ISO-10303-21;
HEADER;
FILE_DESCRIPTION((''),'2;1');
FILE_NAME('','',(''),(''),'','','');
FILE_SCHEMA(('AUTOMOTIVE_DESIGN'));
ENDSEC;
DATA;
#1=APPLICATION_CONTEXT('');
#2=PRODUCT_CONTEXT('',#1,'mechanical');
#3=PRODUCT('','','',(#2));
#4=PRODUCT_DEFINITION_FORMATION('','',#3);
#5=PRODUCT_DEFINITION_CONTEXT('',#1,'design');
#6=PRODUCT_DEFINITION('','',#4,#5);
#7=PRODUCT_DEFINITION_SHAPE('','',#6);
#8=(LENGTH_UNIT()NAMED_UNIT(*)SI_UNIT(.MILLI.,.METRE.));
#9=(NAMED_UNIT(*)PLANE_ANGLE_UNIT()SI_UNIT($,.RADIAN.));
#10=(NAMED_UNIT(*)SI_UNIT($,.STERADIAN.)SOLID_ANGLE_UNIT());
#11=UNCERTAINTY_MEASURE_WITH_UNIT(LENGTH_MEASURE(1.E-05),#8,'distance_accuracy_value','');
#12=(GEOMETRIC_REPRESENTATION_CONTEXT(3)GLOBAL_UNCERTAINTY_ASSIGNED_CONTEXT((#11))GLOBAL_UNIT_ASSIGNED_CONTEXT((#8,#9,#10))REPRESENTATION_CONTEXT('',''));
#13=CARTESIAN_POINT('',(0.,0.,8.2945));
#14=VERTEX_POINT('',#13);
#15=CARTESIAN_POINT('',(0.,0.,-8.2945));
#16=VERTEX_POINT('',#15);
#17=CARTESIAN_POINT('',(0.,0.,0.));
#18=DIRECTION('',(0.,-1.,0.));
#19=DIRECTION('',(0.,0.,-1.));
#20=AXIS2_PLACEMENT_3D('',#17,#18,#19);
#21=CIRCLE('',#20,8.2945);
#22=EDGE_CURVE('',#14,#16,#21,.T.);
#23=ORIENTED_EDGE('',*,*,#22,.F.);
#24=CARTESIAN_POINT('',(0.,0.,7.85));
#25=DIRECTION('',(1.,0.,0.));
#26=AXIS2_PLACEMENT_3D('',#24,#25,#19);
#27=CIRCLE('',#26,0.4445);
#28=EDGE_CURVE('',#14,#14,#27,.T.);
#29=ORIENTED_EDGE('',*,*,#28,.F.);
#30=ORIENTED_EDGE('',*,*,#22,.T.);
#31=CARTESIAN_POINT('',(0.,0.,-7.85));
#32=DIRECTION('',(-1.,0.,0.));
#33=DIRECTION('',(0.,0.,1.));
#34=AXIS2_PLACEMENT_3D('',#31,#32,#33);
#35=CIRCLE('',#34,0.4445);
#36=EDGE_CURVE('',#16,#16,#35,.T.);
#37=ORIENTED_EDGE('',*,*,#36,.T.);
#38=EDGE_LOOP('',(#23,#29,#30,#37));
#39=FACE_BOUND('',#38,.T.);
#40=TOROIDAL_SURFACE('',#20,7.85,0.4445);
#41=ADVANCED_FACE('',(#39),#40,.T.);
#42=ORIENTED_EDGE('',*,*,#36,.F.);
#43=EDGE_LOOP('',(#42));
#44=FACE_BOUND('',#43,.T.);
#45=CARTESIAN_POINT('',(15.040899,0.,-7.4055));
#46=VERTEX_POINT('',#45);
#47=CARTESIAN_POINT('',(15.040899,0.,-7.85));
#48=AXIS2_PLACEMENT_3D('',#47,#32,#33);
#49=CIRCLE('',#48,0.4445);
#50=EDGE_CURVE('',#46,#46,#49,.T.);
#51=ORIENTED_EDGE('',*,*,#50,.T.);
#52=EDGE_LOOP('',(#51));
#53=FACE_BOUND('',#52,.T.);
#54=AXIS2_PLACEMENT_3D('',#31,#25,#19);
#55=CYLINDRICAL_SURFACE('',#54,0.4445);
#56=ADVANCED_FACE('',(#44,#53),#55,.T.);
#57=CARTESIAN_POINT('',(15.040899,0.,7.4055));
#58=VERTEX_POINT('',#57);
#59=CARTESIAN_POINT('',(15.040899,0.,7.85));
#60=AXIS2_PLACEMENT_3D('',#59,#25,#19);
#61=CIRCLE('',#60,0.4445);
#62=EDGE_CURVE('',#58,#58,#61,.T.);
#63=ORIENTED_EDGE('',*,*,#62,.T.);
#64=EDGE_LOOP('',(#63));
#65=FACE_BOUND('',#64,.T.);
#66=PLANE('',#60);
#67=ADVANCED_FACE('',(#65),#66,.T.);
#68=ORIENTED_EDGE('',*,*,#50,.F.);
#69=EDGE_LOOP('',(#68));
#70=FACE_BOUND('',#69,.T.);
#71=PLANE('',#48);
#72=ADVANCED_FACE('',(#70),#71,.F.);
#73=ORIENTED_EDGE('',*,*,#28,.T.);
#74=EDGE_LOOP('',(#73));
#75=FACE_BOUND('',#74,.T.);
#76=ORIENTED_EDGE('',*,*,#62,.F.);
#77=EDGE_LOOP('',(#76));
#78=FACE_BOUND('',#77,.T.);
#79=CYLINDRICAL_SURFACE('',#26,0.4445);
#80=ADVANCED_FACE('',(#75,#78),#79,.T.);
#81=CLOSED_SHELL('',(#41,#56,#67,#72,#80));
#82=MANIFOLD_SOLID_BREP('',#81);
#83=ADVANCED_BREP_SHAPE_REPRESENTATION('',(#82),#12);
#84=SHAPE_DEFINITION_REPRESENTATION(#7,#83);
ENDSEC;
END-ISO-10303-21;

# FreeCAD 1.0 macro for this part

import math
import FreeCAD as App
import Part
import Sketcher
from FreeCAD import Vector

doc = App.newDocument("Part")
body = doc.addObject("PartDesign::Body", "Body")

# Sketch on YZ plane
sketch1 = body.newObject("Sketcher::SketchObject", "Sketch")
sketch1.AttachmentSupport = (doc.getObject("YZ_Plane"), [""])
sketch1.MapMode = "FlatFace"
sketch1.AttachmentOffset = App.Placement(Vector(0, 0, 15.040899), App.Rotation())
sketch1.addGeometry(Part.Circle(Vector(0, 7.85, 0), Vector(0, 0, 1), 0.44), False)
sketch1.addConstraint(Sketcher.Constraint("PointOnObject", 0, 3, -2))
sketch1.addConstraint(Sketcher.Constraint("Diameter", 0, 0.889))
sketch1.addConstraint(Sketcher.Constraint("DistanceY", -1, 1, 0, 3, 7.85))

# Sketch on XZ plane
sketch2 = body.newObject("Sketcher::SketchObject", "Sketch001")
sketch2.AttachmentSupport = (doc.getObject("XZ_Plane"), [""])
sketch2.MapMode = "FlatFace"
sketch2.addGeometry(Part.LineSegment(Vector(15, 8, 0), Vector(0, 8, 0)), False)
sketch2.addGeometry(Part.ArcOfCircle(Part.Circle(Vector(0, 0, 0), Vector(0, 0, 1), 8), math.radians(90), math.radians(270)), False)
sketch2.addGeometry(Part.LineSegment(Vector(0, -8, 0), Vector(15, -8, 0)), False)
sketch2.addConstraint(Sketcher.Constraint("Tangent", 0, 2, 1, 1))
sketch2.addConstraint(Sketcher.Constraint("Tangent", 1, 2, 2, 1))
sketch2.addConstraint(Sketcher.Constraint("Horizontal", 0))
sketch2.addConstraint(Sketcher.Constraint("Horizontal", 2))
sketch2.addConstraint(Sketcher.Constraint("Coincident", 1, 3, -1, 1))
sketch2.addConstraint(Sketcher.Constraint("Vertical", 0, 1, 2, 2))
sketch2.addConstraint(Sketcher.Constraint("Radius", 1, 7.85))
sketch2.addConstraint(Sketcher.Constraint("DistanceX", 0, 2, 0, 1, 15.040899))
doc.recompute()

additivepipe = body.newObject("PartDesign::AdditivePipe", "AdditivePipe")
additivepipe.Profile = sketch1
additivepipe.Spine = (sketch2, ["Edge1", "Edge2", "Edge3"])

doc.recompute()
